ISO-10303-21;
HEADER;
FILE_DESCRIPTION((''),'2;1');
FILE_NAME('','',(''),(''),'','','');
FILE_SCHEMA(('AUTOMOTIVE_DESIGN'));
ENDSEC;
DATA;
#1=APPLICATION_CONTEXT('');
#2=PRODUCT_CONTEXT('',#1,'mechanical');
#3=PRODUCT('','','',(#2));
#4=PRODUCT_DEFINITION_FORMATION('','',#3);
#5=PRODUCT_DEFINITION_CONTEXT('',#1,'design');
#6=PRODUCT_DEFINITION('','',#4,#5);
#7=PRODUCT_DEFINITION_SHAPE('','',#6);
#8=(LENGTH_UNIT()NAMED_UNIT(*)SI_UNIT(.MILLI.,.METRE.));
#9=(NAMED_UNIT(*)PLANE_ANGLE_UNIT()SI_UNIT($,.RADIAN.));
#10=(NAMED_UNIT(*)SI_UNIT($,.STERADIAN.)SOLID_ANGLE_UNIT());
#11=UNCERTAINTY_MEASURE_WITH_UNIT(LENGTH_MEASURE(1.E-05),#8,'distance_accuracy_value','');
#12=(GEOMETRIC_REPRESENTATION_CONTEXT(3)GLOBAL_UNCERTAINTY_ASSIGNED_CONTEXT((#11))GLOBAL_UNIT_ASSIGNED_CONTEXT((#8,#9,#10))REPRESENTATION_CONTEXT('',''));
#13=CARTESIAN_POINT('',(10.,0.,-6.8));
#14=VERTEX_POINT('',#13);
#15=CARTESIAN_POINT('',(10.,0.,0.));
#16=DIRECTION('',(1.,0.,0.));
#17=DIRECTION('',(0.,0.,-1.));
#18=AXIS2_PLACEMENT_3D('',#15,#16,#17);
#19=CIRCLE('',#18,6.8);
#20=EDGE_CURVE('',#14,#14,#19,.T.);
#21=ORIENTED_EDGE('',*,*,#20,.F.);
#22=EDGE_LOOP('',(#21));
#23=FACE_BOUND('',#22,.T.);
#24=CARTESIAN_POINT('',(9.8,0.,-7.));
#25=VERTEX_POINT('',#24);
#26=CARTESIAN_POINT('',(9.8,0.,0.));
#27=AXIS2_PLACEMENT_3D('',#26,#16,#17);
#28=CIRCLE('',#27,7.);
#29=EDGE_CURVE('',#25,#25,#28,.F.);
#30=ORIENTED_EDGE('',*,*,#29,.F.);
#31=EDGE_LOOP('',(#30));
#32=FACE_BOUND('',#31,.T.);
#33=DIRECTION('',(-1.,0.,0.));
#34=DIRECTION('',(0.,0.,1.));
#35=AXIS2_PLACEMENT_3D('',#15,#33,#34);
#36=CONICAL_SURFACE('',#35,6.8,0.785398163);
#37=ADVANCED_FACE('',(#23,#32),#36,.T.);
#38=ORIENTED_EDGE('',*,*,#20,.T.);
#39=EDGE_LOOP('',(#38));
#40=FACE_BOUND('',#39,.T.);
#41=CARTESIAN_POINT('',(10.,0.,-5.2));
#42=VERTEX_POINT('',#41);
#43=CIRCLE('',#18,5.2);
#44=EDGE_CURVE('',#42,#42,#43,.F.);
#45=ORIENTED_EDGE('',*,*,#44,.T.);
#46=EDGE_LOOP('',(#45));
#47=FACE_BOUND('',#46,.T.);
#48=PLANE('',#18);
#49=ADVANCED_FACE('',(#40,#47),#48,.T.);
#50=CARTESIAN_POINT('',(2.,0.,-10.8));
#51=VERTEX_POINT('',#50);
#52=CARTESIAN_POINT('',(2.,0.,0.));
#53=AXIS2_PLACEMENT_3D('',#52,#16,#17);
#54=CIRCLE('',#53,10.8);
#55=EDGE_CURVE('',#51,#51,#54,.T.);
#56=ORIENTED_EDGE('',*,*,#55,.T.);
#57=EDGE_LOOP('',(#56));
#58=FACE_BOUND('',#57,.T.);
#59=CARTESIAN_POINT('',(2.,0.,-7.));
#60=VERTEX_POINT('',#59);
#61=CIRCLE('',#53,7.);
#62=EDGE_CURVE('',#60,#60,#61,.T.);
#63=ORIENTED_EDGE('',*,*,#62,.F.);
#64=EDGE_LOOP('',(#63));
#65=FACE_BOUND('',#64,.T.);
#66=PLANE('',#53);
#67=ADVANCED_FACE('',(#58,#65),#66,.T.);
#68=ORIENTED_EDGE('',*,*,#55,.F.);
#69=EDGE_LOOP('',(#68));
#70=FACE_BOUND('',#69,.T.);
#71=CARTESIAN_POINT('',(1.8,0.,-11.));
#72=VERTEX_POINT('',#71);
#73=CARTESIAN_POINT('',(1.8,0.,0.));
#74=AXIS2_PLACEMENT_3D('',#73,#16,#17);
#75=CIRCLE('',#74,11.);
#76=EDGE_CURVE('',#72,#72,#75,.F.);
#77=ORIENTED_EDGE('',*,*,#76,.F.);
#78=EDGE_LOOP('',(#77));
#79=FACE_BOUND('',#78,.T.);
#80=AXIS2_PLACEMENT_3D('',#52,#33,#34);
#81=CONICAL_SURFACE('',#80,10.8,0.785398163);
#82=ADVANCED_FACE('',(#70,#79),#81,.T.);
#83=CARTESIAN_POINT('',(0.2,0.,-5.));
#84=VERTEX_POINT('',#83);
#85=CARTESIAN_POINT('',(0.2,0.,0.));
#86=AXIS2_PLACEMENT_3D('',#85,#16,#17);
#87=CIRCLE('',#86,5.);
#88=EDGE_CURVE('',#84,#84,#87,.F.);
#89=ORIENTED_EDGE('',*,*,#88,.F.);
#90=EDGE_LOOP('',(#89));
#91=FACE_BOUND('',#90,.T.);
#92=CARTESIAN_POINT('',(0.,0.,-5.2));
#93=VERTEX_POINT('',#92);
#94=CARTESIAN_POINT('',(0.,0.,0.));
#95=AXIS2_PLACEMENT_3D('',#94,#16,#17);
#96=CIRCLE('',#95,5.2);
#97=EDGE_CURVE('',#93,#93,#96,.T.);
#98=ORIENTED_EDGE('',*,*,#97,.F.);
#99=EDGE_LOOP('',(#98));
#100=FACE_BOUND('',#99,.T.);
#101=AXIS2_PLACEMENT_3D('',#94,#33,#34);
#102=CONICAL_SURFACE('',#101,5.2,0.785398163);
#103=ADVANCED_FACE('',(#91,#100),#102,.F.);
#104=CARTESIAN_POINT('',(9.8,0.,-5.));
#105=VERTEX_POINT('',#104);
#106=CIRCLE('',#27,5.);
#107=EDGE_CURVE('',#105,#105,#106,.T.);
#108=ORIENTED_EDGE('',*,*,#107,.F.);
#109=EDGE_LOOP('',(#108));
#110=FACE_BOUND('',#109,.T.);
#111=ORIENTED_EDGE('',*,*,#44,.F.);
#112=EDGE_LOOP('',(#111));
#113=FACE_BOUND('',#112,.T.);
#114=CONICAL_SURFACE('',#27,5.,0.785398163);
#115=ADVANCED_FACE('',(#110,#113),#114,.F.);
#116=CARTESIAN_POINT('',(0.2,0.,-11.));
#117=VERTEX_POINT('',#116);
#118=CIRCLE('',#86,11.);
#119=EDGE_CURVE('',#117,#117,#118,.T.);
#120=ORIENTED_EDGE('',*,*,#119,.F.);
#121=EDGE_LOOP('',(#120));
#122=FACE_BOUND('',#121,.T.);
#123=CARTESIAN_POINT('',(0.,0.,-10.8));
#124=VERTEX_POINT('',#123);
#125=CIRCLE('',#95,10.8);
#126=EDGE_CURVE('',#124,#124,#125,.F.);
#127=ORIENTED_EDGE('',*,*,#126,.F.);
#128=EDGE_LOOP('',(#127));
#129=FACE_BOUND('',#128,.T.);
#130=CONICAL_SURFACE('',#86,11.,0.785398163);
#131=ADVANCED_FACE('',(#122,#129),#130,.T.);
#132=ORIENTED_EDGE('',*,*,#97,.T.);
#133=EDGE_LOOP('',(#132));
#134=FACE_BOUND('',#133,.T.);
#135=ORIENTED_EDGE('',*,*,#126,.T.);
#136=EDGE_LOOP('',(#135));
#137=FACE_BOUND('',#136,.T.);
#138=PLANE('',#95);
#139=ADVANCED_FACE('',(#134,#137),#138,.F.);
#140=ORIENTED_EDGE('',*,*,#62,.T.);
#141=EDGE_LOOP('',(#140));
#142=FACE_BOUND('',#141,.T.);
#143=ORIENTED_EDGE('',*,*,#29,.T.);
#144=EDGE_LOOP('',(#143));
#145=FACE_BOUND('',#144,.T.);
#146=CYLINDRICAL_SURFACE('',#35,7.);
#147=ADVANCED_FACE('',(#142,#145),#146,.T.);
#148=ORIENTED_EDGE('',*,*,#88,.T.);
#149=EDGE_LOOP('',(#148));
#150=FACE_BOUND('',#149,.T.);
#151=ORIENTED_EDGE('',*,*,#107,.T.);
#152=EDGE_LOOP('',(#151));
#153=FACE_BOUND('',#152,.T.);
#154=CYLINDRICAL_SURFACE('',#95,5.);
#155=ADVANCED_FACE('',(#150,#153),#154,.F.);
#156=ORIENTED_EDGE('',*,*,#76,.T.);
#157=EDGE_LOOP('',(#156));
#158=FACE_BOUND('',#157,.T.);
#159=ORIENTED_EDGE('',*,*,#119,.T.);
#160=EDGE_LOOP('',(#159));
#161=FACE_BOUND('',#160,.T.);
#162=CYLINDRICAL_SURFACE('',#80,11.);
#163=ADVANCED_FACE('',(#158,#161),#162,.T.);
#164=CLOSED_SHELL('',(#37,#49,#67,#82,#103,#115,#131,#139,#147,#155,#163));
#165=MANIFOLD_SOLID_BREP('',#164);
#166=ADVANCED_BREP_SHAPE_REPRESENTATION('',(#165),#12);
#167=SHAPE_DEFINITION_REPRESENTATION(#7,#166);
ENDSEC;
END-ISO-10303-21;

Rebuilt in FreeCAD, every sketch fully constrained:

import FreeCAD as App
import Part
import Sketcher

V = App.Vector


def edges_at(feature, points):
    """Names of the edges that pass closest to the given points."""
    edges = feature.Shape.Edges
    near = lambda p: min(range(len(edges)), key=lambda i: edges[i].distToShape(Part.Vertex(*p))[0])
    return sorted({f"Edge{near(p) + 1}" for p in points})

doc = App.newDocument("Part")
body = doc.addObject("PartDesign::Body", "Body")

# Sketch on YZ plane
sketch1 = doc.addObject("Sketcher::SketchObject", "Sketch")
body.addObject(sketch1)
sketch1.AttachmentSupport = (doc.YZ_Plane, [""])
sketch1.MapMode = "FlatFace"
sketch1.addGeometry(Part.Circle(V(0, 0, 0), V(0, 0, 1), 11), False)
sketch1.addConstraint(Sketcher.Constraint("Coincident", 0, 3, -1, 1))
sketch1.addConstraint(Sketcher.Constraint("Diameter", 0, 22.0))
pad1 = doc.addObject("PartDesign::Pad", "Pad")
body.addObject(pad1)
pad1.Profile = sketch1
pad1.Length = 2

# Sketch on YZ plane
sketch2 = doc.addObject("Sketcher::SketchObject", "Sketch001")
body.addObject(sketch2)
sketch2.AttachmentSupport = (doc.YZ_Plane, [""])
sketch2.MapMode = "FlatFace"
sketch2.AttachmentOffset = App.Placement(V(0, 0, 2), App.Rotation())
sketch2.addGeometry(Part.Circle(V(0, 0, 0), V(0, 0, 1), 7), False)
sketch2.addConstraint(Sketcher.Constraint("Coincident", 0, 3, -1, 1))
sketch2.addConstraint(Sketcher.Constraint("Diameter", 0, 14.0))
pad2 = doc.addObject("PartDesign::Pad", "Pad001")
body.addObject(pad2)
pad2.Profile = sketch2
pad2.Length = 8

# Sketch on YZ plane
sketch3 = doc.addObject("Sketcher::SketchObject", "Sketch002")
body.addObject(sketch3)
sketch3.AttachmentSupport = (doc.YZ_Plane, [""])
sketch3.MapMode = "FlatFace"
sketch3.AttachmentOffset = App.Placement(V(0, 0, 10), App.Rotation())
sketch3.addGeometry(Part.Circle(V(0, 0, 0), V(0, 0, 1), 5), False)
sketch3.addConstraint(Sketcher.Constraint("Coincident", 0, 3, -1, 1))
sketch3.addConstraint(Sketcher.Constraint("Diameter", 0, 10.0))
pocket1 = doc.addObject("PartDesign::Pocket", "Pocket")
body.addObject(pocket1)
pocket1.Profile = sketch3
pocket1.Type = "ThroughAll"
doc.recompute()

chamfer = doc.addObject("PartDesign::Chamfer", "Chamfer")
body.addObject(chamfer)
chamfer.Base = (pocket1, edges_at(pocket1, [
    (0, 0, 5),
    (10, 0, 5),
    (0, 0, 11),
    (2, 0, 11),
    (10, 0, 7),
]))
chamfer.Size = 0.2

doc.recompute()
